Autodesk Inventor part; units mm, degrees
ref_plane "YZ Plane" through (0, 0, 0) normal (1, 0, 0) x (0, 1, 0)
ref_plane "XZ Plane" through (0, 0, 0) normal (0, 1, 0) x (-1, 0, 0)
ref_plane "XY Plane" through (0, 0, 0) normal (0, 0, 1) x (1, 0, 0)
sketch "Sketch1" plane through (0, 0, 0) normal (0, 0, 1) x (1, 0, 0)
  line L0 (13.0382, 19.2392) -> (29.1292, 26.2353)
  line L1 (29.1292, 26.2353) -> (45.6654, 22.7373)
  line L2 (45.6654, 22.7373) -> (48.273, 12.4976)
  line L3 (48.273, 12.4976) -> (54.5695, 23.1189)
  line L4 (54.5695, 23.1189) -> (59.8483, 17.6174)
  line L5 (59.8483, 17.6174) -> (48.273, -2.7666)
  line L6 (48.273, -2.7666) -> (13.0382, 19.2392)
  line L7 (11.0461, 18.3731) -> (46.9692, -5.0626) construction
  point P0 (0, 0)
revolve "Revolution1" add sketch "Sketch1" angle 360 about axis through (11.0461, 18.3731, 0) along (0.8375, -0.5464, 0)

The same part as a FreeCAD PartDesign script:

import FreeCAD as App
import Part
import Sketcher
Q = App.Units.Quantity

doc = App.newDocument("Part")
body = doc.addObject("PartDesign::Body", "Body")

sketch1 = body.newObject("Sketcher::SketchObject", "Sketch")
sketch1.AttachmentSupport = (doc.getObject("XY_Plane"), [""])
sketch1.MapMode = "FlatFace"
sketch1.addGeometry(Part.LineSegment(App.Vector(29, 26, 0), App.Vector(13, 19, 0)), False)
sketch1.addGeometry(Part.LineSegment(App.Vector(13, 19, 0), App.Vector(48, -3, 0)), False)
sketch1.addGeometry(Part.LineSegment(App.Vector(48, -3, 0), App.Vector(60, 18, 0)), False)
sketch1.addGeometry(Part.LineSegment(App.Vector(60, 18, 0), App.Vector(55, 23, 0)), False)
sketch1.addGeometry(Part.LineSegment(App.Vector(55, 23, 0), App.Vector(48, 12, 0)), False)
sketch1.addGeometry(Part.LineSegment(App.Vector(48, 12, 0), App.Vector(46, 23, 0)), False)
sketch1.addGeometry(Part.LineSegment(App.Vector(46, 23, 0), App.Vector(29, 26, 0)), False)
sketch1.addGeometry(Part.LineSegment(App.Vector(12, 18, 0), App.Vector(47, -5, 0)), True)
sketch1.addConstraint(Sketcher.Constraint("Coincident", 0, 2, 1, 1))
sketch1.addConstraint(Sketcher.Constraint("Coincident", 1, 2, 2, 1))
sketch1.addConstraint(Sketcher.Constraint("Coincident", 2, 2, 3, 1))
sketch1.addConstraint(Sketcher.Constraint("Coincident", 3, 2, 4, 1))
sketch1.addConstraint(Sketcher.Constraint("Coincident", 4, 2, 5, 1))
sketch1.addConstraint(Sketcher.Constraint("Coincident", 5, 2, 6, 1))
sketch1.addConstraint(Sketcher.Constraint("Coincident", 6, 2, 0, 1))
sketch1.addConstraint(Sketcher.Constraint("Vertical", 1, 2, 4, 2))
sketch1.addConstraint(Sketcher.Constraint("Angle", 2, Q("60.4094 deg")))
sketch1.addConstraint(Sketcher.Constraint("Angle", 4, Q("-120.6602 deg")))
sketch1.addConstraint(Sketcher.Constraint("Angle", 7, Q("-33.1211 deg")))
sketch1.addConstraint(Sketcher.Constraint("Distance", 5, Q("0.416 in")))
sketch1.addConstraint(Sketcher.Constraint("Distance", 0, Q("0.6908 in")))
sketch1.addConstraint(Sketcher.Constraint("Distance", 7, Q("1.6352 in")))
sketch1.addConstraint(Sketcher.Constraint("DistanceX", -1, 1, 1, 2, Q("1.9005 in")))
sketch1.addConstraint(Sketcher.Constraint("DistanceY", -1, 1, 2, 2, Q("0.6936 in")))
sketch1.addConstraint(Sketcher.Constraint("DistanceX", -1, 1, 3, 2, Q("2.1484 in")))
sketch1.addConstraint(Sketcher.Constraint("DistanceY", -1, 1, 3, 2, Q("0.9102 in")))
sketch1.addConstraint(Sketcher.Constraint("DistanceX", -1, 1, 7, 1, Q("0.4743 in")))
sketch1.addConstraint(Sketcher.Constraint("DistanceX", 0, 2, 1, 2, Q("1.3872 in")))
sketch1.addConstraint(Sketcher.Constraint("DistanceY", 1, 2, 5, 2, Q("1.0041 in")))
sketch1.addConstraint(Sketcher.Constraint("DistanceX", 0, 2, 6, 2, Q("0.6335 in")))
sketch1.addConstraint(Sketcher.Constraint("DistanceY", 3, 2, 6, 2, Q("0.1227 in")))
sketch1.addConstraint(Sketcher.Constraint("DistanceY", 7, 1, 0, 2, Q("0.0598 in")))
sketch1.addConstraint(Sketcher.Constraint("Distance", 1, Q("1.6355118 in")))
revolution = body.newObject("PartDesign::Revolution", "Revolution")
revolution.Profile = sketch1
revolution.ReferenceAxis = (sketch1, ["Axis0"])
revolution.Angle = 360

doc.recompute()
